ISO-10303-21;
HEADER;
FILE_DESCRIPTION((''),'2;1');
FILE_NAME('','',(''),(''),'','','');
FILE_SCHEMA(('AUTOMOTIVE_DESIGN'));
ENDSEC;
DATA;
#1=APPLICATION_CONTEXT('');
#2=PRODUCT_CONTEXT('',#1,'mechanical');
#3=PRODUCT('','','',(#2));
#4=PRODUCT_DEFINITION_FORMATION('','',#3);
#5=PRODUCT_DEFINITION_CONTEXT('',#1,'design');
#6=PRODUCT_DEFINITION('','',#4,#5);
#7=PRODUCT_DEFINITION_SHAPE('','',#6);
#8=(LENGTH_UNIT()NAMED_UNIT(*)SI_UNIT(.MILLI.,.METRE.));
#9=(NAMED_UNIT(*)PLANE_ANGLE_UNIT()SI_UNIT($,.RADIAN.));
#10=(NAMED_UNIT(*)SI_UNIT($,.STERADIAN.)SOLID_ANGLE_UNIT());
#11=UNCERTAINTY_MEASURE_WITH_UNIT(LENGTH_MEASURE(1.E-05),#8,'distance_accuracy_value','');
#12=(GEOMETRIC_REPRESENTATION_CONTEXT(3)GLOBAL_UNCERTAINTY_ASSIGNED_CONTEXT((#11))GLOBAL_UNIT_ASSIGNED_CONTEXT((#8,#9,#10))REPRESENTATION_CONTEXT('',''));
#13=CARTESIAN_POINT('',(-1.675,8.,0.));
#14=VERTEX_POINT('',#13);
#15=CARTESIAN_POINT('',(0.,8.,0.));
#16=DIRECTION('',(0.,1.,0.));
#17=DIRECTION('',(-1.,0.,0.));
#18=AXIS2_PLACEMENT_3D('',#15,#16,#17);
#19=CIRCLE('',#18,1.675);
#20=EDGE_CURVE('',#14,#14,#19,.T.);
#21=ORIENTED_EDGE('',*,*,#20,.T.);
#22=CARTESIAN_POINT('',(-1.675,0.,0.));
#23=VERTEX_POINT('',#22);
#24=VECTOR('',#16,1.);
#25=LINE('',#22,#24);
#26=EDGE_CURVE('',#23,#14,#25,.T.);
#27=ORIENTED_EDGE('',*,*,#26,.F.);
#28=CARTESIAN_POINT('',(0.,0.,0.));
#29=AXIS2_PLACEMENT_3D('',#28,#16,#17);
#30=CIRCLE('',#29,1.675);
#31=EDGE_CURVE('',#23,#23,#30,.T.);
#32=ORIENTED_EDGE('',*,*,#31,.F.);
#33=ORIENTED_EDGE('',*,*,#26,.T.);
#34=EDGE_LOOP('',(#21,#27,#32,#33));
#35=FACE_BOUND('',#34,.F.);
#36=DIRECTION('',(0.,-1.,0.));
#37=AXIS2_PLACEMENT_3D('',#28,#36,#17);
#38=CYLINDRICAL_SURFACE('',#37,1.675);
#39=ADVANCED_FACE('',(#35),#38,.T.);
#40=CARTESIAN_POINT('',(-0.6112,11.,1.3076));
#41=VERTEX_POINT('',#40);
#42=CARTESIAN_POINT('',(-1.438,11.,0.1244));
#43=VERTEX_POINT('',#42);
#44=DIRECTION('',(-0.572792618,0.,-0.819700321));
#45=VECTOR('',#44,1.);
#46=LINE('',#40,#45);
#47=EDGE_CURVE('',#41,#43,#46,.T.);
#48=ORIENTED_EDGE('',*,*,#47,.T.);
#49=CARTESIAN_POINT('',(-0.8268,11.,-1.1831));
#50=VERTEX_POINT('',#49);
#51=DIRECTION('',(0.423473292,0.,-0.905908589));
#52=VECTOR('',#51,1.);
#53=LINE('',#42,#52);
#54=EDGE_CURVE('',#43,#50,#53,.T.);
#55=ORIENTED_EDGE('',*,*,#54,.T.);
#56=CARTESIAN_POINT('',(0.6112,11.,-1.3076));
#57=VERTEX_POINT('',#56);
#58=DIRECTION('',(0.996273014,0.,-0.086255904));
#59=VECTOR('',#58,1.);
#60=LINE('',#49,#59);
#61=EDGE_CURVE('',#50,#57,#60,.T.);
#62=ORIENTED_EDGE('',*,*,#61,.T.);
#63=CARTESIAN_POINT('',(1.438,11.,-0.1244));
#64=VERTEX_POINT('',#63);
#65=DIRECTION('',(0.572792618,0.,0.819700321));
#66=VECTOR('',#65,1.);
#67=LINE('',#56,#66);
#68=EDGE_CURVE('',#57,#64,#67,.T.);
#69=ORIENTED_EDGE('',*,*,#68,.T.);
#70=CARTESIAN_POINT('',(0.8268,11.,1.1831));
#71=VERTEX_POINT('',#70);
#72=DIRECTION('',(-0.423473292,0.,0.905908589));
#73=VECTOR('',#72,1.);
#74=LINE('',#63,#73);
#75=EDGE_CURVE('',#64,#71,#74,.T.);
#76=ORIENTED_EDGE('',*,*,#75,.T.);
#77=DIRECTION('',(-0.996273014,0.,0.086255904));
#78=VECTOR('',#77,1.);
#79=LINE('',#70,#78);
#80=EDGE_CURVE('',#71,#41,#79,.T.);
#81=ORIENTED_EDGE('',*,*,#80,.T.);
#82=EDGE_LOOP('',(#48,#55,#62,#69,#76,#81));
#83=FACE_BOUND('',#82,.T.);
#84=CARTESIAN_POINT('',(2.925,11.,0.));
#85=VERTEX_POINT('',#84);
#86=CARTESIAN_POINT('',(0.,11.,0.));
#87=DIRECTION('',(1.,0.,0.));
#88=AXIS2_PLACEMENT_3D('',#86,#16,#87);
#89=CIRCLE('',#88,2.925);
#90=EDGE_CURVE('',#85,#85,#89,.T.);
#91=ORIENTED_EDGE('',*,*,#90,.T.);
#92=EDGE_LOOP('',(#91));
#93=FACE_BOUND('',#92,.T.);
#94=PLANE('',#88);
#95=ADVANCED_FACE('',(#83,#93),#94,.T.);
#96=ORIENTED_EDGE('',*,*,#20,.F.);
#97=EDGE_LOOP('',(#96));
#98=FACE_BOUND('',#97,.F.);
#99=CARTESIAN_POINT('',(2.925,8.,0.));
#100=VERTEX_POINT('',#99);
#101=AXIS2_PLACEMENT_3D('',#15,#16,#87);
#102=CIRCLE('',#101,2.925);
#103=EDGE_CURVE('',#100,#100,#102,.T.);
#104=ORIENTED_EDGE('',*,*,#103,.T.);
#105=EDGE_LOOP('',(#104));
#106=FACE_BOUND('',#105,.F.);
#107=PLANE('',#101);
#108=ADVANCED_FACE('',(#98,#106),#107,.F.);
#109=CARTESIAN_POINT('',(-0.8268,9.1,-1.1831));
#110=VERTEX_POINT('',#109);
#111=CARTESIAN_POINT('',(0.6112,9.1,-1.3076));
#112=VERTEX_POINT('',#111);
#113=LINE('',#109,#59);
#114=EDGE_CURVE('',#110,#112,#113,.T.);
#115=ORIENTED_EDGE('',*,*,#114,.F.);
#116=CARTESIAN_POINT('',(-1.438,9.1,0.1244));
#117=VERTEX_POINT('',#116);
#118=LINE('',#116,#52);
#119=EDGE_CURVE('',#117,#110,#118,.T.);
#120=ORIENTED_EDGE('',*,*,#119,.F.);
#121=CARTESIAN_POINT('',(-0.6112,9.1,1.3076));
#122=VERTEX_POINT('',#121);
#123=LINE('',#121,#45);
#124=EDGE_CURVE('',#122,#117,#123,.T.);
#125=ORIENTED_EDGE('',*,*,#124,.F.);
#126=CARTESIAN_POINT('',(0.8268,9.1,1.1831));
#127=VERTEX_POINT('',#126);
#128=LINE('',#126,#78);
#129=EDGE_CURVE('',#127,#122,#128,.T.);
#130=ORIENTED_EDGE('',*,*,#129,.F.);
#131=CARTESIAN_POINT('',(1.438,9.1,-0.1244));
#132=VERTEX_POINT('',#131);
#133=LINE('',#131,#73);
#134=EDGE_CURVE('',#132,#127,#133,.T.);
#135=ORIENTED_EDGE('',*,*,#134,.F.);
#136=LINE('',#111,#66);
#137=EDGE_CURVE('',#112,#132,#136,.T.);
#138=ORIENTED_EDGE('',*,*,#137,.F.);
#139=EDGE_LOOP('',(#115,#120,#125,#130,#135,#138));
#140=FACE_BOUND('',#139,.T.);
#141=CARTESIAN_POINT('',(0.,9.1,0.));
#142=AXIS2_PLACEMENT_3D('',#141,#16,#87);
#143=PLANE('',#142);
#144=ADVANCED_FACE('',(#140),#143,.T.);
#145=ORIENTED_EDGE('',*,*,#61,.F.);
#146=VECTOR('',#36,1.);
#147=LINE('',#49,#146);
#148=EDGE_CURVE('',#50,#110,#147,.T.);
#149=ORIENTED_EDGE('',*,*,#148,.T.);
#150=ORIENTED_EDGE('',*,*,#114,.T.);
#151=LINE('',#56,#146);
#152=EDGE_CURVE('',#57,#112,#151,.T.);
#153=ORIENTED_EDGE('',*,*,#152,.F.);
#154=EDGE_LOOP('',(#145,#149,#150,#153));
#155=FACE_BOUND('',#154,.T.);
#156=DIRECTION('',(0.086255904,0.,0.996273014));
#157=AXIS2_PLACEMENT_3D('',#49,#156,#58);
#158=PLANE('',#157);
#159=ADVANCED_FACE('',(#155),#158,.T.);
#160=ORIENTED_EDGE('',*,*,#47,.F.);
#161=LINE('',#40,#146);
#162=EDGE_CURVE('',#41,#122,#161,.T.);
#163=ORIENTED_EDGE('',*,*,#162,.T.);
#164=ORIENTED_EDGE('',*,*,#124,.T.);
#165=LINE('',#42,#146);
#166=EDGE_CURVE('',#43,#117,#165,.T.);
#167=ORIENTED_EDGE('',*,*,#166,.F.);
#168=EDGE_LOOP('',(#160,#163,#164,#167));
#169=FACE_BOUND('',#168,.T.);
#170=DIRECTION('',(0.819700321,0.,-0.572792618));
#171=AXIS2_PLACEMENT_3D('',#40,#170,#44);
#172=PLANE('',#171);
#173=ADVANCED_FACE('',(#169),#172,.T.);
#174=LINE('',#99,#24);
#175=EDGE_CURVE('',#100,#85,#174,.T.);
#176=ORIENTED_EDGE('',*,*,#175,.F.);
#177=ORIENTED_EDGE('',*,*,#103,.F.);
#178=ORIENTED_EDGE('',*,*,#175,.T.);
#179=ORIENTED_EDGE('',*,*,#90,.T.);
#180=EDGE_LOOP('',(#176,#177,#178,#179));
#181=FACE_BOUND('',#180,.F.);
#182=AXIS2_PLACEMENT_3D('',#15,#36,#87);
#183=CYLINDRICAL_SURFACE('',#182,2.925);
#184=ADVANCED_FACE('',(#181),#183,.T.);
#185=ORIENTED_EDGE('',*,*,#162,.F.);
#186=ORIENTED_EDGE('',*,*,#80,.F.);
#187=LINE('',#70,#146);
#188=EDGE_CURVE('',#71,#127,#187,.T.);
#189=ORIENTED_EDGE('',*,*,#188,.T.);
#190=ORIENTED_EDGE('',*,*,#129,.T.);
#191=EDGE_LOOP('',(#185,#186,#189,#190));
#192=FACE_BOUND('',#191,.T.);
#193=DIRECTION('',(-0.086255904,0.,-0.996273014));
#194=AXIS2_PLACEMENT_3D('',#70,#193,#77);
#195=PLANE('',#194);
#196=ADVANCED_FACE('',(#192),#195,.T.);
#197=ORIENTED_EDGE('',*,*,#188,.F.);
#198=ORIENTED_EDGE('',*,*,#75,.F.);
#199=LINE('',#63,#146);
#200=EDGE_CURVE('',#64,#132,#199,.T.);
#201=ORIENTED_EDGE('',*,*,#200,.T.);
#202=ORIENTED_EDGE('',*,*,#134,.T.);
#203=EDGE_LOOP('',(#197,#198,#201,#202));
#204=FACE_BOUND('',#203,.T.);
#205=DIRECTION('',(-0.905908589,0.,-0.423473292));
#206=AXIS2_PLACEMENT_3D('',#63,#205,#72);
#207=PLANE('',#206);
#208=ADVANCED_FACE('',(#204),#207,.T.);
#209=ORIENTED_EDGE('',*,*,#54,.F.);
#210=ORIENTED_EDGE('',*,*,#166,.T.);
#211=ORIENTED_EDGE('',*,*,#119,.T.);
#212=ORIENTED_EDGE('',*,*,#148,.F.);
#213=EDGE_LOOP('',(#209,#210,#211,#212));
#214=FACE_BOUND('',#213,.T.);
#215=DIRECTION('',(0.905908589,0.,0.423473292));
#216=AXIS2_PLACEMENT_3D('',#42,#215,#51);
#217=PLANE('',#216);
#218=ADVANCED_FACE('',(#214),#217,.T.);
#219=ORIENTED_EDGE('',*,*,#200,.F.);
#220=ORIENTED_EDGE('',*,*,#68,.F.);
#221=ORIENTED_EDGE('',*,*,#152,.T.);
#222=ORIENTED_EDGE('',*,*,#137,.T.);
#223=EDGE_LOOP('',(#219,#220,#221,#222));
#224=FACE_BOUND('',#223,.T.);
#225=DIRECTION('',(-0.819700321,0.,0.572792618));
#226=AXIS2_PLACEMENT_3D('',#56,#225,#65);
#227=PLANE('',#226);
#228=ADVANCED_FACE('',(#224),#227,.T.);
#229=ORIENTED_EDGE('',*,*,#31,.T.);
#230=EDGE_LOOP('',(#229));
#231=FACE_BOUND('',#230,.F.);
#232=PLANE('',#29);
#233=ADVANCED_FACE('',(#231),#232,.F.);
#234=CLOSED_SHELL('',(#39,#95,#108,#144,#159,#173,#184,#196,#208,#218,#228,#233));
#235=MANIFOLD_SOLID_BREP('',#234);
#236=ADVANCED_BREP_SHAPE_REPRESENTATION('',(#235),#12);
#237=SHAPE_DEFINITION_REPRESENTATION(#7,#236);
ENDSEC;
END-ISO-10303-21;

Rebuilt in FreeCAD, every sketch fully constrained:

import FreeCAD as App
import Part
import Sketcher

V = App.Vector
Q = App.Units.Quantity

doc = App.newDocument("Part")
body = doc.addObject("PartDesign::Body", "Body")

sketch1 = body.newObject("Sketcher::SketchObject", "Sketch")
sketch1.AttachmentSupport = (doc.getObject("XZ_Plane"), [""])
sketch1.MapMode = "FlatFace"
sketch1.addGeometry(Part.Circle(V(0, 0, 0), V(0, 0, 1), 1.7), False)
sketch1.addConstraint([
    Sketcher.Constraint("Coincident", 0, 3, -1, 1),
    Sketcher.Constraint("Diameter", 0, Q("3.35 mm")),
])
pad1 = body.newObject("PartDesign::Pad", "Pad")
pad1.Profile = sketch1
pad1.Length = 8
pad1.Reversed = True

sketch2 = body.newObject("Sketcher::SketchObject", "Sketch001")
sketch2.AttachmentSupport = (doc.getObject("XZ_Plane"), [""])
sketch2.MapMode = "FlatFace"
sketch2.AttachmentOffset = App.Placement(V(0, 0, -8), App.Rotation())
sketch2.addGeometry(Part.Circle(V(0, 0, 0), V(0, 0, 1), 2.9), False)
sketch2.addConstraint([
    Sketcher.Constraint("Coincident", 0, 3, -1, 1),
    Sketcher.Constraint("Diameter", 0, Q("5.85 mm")),
])
pad2 = body.newObject("PartDesign::Pad", "Pad001")
pad2.Profile = sketch2
pad2.Length = 3
pad2.Reversed = True

sketch3 = body.newObject("Sketcher::SketchObject", "Sketch002")
sketch3.AttachmentSupport = (doc.getObject("XZ_Plane"), [""])
sketch3.MapMode = "FlatFace"
sketch3.AttachmentOffset = App.Placement(V(0, 0, -11), App.Rotation())
sketch3.addGeometry([
    Part.LineSegment(V(0.6112, -1.3076, 0), V(-0.8268, -1.1831, 0)),
    Part.LineSegment(V(-0.8268, -1.1831, 0), V(-1.438, 0.1244, 0)),
    Part.LineSegment(V(-1.438, 0.1244, 0), V(-0.6112, 1.3076, 0)),
    Part.LineSegment(V(-0.6112, 1.3076, 0), V(0.8268, 1.1831, 0)),
    Part.LineSegment(V(0.8268, 1.1831, 0), V(1.438, -0.1244, 0)),
    Part.LineSegment(V(1.438, -0.1244, 0), V(0.6112, -1.3076, 0)),
], False)
sketch3.addConstraint([
    Sketcher.Constraint("Coincident", 0, 2, 1, 1),
    Sketcher.Constraint("Coincident", 1, 2, 2, 1),
    Sketcher.Constraint("Coincident", 2, 2, 3, 1),
    Sketcher.Constraint("Coincident", 3, 2, 4, 1),
    Sketcher.Constraint("Coincident", 4, 2, 5, 1),
    Sketcher.Constraint("Coincident", 5, 2, 0, 1),
    Sketcher.Constraint("DistanceY", 0, 2, -1, 1, Q("1.183 mm")),
    Sketcher.Constraint("DistanceX", 1, 2, -1, 1, Q("1.438 mm")),
    Sketcher.Constraint("DistanceY", -1, 1, 3, 2, Q("1.183 mm")),
    Sketcher.Constraint("DistanceX", -1, 1, 4, 2, Q("1.438 mm")),
    Sketcher.Constraint("DistanceX", 2, 2, 3, 2, Q("1.438 mm")),
    Sketcher.Constraint("DistanceY", 4, 2, 2, 2, Q("1.432 mm")),
    Sketcher.Constraint("DistanceX", 0, 2, 5, 2, Q("1.438 mm")),
    Sketcher.Constraint("DistanceY", 5, 2, 1, 2, Q("1.432 mm")),
    Sketcher.Constraint("Distance", 0, Q("1.4434 mm")),
    Sketcher.Constraint("Distance", 1, Q("1.4433 mm")),
    Sketcher.Constraint("Distance", 2, Q("1.4435 mm")),
    Sketcher.Constraint("Distance", 3, Q("1.4434 mm")),
])
pocket1 = body.newObject("PartDesign::Pocket", "Pocket")
pocket1.Profile = sketch3
pocket1.Length = 1.9
pocket1.Reversed = True

doc.recompute()
